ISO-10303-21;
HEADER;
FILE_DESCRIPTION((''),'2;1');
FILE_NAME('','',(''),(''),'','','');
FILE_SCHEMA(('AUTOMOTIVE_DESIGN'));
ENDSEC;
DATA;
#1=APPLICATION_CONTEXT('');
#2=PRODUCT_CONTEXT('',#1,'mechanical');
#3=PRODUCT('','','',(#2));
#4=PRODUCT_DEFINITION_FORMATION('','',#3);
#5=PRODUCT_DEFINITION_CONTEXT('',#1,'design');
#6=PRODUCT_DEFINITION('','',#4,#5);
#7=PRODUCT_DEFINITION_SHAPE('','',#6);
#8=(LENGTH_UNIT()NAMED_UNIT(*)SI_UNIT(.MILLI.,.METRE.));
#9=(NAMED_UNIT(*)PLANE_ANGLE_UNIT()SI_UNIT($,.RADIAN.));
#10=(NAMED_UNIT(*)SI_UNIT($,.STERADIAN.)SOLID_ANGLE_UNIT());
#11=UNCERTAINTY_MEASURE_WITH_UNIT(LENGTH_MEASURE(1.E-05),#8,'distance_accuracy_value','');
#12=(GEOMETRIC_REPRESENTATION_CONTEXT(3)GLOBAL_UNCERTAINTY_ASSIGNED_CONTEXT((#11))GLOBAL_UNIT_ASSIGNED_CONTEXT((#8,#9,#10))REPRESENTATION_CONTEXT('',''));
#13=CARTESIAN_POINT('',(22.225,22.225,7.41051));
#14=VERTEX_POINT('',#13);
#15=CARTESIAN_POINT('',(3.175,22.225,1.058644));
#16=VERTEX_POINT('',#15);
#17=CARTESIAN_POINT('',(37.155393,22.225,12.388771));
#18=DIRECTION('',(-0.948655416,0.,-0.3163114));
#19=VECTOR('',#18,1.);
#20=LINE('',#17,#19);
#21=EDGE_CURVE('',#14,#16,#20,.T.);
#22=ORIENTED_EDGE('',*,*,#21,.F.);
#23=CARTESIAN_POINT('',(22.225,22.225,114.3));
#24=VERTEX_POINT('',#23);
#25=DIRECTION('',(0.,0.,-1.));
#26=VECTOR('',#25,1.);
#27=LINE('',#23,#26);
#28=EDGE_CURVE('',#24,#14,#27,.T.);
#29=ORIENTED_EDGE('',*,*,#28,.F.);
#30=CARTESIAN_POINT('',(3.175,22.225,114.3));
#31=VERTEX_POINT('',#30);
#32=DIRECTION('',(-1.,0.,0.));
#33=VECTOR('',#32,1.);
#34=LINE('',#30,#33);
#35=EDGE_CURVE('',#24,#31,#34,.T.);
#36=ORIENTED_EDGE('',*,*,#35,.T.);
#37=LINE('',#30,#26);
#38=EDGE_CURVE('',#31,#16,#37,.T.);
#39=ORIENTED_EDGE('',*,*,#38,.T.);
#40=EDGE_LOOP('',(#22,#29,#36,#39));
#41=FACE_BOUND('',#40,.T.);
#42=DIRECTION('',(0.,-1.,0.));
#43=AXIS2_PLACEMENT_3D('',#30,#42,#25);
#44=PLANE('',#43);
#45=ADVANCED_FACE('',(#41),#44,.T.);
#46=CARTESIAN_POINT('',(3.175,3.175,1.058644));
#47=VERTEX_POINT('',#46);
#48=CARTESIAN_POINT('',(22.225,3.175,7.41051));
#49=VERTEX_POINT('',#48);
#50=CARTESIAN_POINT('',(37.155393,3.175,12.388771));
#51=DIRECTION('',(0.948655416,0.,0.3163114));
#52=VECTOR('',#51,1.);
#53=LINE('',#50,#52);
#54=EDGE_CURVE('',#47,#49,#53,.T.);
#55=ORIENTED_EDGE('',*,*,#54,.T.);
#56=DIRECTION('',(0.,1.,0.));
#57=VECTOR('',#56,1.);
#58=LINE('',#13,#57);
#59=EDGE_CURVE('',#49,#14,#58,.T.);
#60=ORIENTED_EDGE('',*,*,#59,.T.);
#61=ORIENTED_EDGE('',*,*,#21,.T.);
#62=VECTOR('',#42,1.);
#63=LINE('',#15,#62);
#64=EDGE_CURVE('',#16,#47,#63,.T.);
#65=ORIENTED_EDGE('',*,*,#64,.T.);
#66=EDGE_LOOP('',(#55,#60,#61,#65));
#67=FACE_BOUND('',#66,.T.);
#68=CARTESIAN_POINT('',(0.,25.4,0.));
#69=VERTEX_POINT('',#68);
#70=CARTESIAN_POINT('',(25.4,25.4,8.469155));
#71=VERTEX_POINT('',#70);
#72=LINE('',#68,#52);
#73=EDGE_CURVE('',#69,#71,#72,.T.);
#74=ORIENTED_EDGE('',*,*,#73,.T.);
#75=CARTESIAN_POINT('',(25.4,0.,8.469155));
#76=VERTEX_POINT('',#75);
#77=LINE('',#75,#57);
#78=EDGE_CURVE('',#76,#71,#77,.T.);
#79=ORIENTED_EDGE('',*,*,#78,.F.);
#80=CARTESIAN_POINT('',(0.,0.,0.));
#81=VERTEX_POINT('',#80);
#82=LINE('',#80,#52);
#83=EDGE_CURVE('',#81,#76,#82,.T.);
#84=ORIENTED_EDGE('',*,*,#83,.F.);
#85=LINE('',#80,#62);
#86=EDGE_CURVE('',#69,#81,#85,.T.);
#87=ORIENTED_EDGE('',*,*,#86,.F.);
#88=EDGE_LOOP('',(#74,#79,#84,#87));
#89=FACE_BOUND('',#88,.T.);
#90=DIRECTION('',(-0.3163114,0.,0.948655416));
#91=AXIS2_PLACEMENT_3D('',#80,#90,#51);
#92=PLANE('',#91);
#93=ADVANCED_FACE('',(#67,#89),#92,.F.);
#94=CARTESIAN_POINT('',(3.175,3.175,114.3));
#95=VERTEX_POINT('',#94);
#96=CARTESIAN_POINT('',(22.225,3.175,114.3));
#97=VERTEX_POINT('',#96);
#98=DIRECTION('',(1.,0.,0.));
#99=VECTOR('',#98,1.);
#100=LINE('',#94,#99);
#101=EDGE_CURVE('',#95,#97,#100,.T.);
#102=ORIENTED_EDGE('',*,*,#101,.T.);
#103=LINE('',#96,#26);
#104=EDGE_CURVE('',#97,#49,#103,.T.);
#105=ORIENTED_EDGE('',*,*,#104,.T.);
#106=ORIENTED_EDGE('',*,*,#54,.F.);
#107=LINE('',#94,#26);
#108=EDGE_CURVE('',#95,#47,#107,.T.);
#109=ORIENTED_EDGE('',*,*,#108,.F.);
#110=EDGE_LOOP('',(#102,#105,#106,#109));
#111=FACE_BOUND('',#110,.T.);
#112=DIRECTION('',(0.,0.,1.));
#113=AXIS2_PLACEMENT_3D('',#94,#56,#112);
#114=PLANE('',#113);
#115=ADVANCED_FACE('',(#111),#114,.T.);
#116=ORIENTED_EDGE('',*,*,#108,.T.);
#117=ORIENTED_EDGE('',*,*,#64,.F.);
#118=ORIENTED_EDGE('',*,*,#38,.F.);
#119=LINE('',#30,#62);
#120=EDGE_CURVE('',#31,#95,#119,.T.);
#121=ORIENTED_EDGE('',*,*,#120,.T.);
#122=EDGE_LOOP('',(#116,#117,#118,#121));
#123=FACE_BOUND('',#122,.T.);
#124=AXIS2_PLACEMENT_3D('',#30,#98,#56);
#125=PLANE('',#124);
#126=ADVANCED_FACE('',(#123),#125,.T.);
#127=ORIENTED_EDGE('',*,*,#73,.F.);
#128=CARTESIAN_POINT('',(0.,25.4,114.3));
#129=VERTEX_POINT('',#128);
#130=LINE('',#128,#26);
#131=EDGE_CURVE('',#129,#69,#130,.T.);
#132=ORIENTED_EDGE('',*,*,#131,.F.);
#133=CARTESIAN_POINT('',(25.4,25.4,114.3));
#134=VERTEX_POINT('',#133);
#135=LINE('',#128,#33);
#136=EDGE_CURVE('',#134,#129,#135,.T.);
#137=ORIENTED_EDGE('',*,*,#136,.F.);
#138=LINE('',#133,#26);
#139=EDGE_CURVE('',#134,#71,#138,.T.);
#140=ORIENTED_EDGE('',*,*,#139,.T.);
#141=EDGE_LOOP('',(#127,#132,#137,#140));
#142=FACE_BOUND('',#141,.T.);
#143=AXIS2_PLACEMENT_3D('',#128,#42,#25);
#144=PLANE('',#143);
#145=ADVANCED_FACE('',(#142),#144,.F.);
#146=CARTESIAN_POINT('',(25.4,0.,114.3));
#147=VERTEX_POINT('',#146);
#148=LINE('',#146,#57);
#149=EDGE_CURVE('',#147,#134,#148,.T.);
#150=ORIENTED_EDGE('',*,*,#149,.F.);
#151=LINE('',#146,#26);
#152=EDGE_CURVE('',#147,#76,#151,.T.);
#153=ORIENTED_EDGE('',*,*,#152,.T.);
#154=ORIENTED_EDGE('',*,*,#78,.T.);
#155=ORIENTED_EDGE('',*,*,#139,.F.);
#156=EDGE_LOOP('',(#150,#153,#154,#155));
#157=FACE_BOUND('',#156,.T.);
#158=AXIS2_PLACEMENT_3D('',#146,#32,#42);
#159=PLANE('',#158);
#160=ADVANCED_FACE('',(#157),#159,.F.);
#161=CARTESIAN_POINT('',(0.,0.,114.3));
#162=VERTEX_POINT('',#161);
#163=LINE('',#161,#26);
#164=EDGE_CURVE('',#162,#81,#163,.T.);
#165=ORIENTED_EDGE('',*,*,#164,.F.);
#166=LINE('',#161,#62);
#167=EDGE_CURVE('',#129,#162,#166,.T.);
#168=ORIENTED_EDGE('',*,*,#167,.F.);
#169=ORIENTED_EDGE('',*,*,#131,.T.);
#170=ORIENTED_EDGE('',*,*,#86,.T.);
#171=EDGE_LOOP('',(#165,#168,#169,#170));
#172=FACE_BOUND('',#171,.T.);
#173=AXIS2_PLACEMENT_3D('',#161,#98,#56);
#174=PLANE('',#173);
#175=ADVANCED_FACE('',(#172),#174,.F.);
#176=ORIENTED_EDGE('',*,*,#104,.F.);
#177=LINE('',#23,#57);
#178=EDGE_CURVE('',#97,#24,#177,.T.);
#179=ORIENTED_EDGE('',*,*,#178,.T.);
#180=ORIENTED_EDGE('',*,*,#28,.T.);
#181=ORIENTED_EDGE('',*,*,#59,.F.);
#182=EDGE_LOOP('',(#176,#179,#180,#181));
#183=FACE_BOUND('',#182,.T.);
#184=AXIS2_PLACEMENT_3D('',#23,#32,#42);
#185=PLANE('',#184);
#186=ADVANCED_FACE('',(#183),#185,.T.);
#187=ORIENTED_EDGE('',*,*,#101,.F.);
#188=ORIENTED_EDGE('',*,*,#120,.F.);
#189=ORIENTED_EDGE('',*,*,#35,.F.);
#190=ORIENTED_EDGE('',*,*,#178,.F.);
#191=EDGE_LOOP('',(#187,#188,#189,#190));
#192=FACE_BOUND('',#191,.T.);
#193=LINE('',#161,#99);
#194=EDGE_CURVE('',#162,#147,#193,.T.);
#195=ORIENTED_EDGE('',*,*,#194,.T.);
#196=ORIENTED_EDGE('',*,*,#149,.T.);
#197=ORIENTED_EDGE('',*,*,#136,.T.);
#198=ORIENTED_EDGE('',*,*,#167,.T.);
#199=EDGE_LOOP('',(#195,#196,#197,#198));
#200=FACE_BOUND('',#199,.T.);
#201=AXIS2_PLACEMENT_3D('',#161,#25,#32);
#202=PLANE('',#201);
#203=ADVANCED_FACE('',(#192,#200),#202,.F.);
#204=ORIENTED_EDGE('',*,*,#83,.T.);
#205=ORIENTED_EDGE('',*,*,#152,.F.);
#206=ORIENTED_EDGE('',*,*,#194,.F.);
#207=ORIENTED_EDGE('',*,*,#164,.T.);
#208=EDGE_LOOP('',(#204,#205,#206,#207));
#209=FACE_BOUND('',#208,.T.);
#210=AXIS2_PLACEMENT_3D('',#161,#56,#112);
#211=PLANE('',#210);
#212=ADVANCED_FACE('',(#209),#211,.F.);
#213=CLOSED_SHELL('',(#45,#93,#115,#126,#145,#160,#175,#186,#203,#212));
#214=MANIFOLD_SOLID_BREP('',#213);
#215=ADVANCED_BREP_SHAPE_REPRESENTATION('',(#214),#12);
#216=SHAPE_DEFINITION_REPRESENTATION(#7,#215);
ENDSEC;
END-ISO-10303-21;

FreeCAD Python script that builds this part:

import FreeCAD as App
import Part
import Sketcher
Q = App.Units.Quantity


def add_polygon(sketch, points):
    """Adds a closed chain of lines whose ends are joined by coincident constraints."""
    first, n = sketch.GeometryCount, len(points)
    for a, b in zip(points, points[1:] + points[:1]):
        sketch.addGeometry(Part.LineSegment(App.Vector(*a, 0), App.Vector(*b, 0)), False)
    for i in range(n):
        sketch.addConstraint(Sketcher.Constraint("Coincident", first + i, 2, first + (i + 1) % n, 1))

doc = App.newDocument("Part")
params = doc.addObject("Spreadsheet::Sheet", "Params")
for row, (alias, value) in enumerate([
    ("sketch1_width", "1 in"),
    ("sketch1_width2", "0.75 in"),
    ("pad1_length", "4.5 in"),
    ("sketch2_width", "1 in"),
], start=1):
    params.set(f"A{row}", alias)
    params.set(f"B{row}", "=" + value)
    params.setAlias(f"B{row}", alias)

body = doc.addObject("PartDesign::Body", "Body")

sketch1 = body.newObject("Sketcher::SketchObject", "Sketch")
sketch1.AttachmentSupport = (doc.getObject("XY_Plane"), [""])
sketch1.MapMode = "FlatFace"
add_polygon(sketch1, [(0, 25.4), (0, 0), (25.4, 0), (25.4, 25.4)])
add_polygon(sketch1, [(22.225, 3.175), (3.175, 3.175), (3.175, 22.225), (22.225, 22.225)])
sketch1.addConstraint(Sketcher.Constraint("Vertical", 0))
sketch1.addConstraint(Sketcher.Constraint("Horizontal", 1))
sketch1.addConstraint(Sketcher.Constraint("Vertical", 2))
sketch1.addConstraint(Sketcher.Constraint("Horizontal", 3))
sketch1.addConstraint(Sketcher.Constraint("Horizontal", 4))
sketch1.addConstraint(Sketcher.Constraint("Vertical", 5))
sketch1.addConstraint(Sketcher.Constraint("Horizontal", 6))
sketch1.addConstraint(Sketcher.Constraint("Vertical", 7))
sketch1.addConstraint(Sketcher.Constraint("Coincident", 0, 2, -1, 1))
sketch1.addConstraint(Sketcher.Constraint("Equal", 3, 0))
sketch1.addConstraint(Sketcher.Constraint("Equal", 6, 5))
sketch1.addConstraint(Sketcher.Constraint("DistanceX", 1, 1, 1, 2, Q("1 in")))
sketch1.addConstraint(Sketcher.Constraint("DistanceX", 4, 2, 4, 1, Q("0.75 in")))
sketch1.addConstraint(Sketcher.Constraint("DistanceX", -1, 1, 4, 2, Q("0.125 in")))
sketch1.addConstraint(Sketcher.Constraint("DistanceY", -1, 1, 4, 2, Q("0.125 in")))
sketch1.setExpression("Constraints[19]", "Params.sketch1_width")
sketch1.setExpression("Constraints[20]", "Params.sketch1_width2")
pad1 = body.newObject("PartDesign::Pad", "Pad")
pad1.Profile = sketch1
pad1.setExpression("Length", "Params.pad1_length")

sketch2 = body.newObject("Sketcher::SketchObject", "Sketch001")
sketch2.AttachmentSupport = (doc.getObject("XZ_Plane"), [""])
sketch2.MapMode = "FlatFace"
sketch2.AttachmentOffset = App.Placement(App.Vector(0, 0, -1 * 25.4), App.Rotation())
add_polygon(sketch2, [(0, 0), (25.4, 8.469155), (25.4, 0)])
sketch2.addConstraint(Sketcher.Constraint("Vertical", 1))
sketch2.addConstraint(Sketcher.Constraint("Horizontal", 2))
sketch2.addConstraint(Sketcher.Constraint("Coincident", 2, 2, -1, 1))
sketch2.addConstraint(Sketcher.Constraint("DistanceX", 2, 2, 2, 1, Q("1 in")))
sketch2.addConstraint(Sketcher.Constraint("Angle", 0, Q("18.44 deg")))
sketch2.setExpression("Constraints[6]", "Params.sketch2_width")
pocket1 = body.newObject("PartDesign::Pocket", "Pocket")
pocket1.Profile = sketch2
pocket1.Type = "ThroughAll"
pocket1.Reversed = True

doc.recompute()
